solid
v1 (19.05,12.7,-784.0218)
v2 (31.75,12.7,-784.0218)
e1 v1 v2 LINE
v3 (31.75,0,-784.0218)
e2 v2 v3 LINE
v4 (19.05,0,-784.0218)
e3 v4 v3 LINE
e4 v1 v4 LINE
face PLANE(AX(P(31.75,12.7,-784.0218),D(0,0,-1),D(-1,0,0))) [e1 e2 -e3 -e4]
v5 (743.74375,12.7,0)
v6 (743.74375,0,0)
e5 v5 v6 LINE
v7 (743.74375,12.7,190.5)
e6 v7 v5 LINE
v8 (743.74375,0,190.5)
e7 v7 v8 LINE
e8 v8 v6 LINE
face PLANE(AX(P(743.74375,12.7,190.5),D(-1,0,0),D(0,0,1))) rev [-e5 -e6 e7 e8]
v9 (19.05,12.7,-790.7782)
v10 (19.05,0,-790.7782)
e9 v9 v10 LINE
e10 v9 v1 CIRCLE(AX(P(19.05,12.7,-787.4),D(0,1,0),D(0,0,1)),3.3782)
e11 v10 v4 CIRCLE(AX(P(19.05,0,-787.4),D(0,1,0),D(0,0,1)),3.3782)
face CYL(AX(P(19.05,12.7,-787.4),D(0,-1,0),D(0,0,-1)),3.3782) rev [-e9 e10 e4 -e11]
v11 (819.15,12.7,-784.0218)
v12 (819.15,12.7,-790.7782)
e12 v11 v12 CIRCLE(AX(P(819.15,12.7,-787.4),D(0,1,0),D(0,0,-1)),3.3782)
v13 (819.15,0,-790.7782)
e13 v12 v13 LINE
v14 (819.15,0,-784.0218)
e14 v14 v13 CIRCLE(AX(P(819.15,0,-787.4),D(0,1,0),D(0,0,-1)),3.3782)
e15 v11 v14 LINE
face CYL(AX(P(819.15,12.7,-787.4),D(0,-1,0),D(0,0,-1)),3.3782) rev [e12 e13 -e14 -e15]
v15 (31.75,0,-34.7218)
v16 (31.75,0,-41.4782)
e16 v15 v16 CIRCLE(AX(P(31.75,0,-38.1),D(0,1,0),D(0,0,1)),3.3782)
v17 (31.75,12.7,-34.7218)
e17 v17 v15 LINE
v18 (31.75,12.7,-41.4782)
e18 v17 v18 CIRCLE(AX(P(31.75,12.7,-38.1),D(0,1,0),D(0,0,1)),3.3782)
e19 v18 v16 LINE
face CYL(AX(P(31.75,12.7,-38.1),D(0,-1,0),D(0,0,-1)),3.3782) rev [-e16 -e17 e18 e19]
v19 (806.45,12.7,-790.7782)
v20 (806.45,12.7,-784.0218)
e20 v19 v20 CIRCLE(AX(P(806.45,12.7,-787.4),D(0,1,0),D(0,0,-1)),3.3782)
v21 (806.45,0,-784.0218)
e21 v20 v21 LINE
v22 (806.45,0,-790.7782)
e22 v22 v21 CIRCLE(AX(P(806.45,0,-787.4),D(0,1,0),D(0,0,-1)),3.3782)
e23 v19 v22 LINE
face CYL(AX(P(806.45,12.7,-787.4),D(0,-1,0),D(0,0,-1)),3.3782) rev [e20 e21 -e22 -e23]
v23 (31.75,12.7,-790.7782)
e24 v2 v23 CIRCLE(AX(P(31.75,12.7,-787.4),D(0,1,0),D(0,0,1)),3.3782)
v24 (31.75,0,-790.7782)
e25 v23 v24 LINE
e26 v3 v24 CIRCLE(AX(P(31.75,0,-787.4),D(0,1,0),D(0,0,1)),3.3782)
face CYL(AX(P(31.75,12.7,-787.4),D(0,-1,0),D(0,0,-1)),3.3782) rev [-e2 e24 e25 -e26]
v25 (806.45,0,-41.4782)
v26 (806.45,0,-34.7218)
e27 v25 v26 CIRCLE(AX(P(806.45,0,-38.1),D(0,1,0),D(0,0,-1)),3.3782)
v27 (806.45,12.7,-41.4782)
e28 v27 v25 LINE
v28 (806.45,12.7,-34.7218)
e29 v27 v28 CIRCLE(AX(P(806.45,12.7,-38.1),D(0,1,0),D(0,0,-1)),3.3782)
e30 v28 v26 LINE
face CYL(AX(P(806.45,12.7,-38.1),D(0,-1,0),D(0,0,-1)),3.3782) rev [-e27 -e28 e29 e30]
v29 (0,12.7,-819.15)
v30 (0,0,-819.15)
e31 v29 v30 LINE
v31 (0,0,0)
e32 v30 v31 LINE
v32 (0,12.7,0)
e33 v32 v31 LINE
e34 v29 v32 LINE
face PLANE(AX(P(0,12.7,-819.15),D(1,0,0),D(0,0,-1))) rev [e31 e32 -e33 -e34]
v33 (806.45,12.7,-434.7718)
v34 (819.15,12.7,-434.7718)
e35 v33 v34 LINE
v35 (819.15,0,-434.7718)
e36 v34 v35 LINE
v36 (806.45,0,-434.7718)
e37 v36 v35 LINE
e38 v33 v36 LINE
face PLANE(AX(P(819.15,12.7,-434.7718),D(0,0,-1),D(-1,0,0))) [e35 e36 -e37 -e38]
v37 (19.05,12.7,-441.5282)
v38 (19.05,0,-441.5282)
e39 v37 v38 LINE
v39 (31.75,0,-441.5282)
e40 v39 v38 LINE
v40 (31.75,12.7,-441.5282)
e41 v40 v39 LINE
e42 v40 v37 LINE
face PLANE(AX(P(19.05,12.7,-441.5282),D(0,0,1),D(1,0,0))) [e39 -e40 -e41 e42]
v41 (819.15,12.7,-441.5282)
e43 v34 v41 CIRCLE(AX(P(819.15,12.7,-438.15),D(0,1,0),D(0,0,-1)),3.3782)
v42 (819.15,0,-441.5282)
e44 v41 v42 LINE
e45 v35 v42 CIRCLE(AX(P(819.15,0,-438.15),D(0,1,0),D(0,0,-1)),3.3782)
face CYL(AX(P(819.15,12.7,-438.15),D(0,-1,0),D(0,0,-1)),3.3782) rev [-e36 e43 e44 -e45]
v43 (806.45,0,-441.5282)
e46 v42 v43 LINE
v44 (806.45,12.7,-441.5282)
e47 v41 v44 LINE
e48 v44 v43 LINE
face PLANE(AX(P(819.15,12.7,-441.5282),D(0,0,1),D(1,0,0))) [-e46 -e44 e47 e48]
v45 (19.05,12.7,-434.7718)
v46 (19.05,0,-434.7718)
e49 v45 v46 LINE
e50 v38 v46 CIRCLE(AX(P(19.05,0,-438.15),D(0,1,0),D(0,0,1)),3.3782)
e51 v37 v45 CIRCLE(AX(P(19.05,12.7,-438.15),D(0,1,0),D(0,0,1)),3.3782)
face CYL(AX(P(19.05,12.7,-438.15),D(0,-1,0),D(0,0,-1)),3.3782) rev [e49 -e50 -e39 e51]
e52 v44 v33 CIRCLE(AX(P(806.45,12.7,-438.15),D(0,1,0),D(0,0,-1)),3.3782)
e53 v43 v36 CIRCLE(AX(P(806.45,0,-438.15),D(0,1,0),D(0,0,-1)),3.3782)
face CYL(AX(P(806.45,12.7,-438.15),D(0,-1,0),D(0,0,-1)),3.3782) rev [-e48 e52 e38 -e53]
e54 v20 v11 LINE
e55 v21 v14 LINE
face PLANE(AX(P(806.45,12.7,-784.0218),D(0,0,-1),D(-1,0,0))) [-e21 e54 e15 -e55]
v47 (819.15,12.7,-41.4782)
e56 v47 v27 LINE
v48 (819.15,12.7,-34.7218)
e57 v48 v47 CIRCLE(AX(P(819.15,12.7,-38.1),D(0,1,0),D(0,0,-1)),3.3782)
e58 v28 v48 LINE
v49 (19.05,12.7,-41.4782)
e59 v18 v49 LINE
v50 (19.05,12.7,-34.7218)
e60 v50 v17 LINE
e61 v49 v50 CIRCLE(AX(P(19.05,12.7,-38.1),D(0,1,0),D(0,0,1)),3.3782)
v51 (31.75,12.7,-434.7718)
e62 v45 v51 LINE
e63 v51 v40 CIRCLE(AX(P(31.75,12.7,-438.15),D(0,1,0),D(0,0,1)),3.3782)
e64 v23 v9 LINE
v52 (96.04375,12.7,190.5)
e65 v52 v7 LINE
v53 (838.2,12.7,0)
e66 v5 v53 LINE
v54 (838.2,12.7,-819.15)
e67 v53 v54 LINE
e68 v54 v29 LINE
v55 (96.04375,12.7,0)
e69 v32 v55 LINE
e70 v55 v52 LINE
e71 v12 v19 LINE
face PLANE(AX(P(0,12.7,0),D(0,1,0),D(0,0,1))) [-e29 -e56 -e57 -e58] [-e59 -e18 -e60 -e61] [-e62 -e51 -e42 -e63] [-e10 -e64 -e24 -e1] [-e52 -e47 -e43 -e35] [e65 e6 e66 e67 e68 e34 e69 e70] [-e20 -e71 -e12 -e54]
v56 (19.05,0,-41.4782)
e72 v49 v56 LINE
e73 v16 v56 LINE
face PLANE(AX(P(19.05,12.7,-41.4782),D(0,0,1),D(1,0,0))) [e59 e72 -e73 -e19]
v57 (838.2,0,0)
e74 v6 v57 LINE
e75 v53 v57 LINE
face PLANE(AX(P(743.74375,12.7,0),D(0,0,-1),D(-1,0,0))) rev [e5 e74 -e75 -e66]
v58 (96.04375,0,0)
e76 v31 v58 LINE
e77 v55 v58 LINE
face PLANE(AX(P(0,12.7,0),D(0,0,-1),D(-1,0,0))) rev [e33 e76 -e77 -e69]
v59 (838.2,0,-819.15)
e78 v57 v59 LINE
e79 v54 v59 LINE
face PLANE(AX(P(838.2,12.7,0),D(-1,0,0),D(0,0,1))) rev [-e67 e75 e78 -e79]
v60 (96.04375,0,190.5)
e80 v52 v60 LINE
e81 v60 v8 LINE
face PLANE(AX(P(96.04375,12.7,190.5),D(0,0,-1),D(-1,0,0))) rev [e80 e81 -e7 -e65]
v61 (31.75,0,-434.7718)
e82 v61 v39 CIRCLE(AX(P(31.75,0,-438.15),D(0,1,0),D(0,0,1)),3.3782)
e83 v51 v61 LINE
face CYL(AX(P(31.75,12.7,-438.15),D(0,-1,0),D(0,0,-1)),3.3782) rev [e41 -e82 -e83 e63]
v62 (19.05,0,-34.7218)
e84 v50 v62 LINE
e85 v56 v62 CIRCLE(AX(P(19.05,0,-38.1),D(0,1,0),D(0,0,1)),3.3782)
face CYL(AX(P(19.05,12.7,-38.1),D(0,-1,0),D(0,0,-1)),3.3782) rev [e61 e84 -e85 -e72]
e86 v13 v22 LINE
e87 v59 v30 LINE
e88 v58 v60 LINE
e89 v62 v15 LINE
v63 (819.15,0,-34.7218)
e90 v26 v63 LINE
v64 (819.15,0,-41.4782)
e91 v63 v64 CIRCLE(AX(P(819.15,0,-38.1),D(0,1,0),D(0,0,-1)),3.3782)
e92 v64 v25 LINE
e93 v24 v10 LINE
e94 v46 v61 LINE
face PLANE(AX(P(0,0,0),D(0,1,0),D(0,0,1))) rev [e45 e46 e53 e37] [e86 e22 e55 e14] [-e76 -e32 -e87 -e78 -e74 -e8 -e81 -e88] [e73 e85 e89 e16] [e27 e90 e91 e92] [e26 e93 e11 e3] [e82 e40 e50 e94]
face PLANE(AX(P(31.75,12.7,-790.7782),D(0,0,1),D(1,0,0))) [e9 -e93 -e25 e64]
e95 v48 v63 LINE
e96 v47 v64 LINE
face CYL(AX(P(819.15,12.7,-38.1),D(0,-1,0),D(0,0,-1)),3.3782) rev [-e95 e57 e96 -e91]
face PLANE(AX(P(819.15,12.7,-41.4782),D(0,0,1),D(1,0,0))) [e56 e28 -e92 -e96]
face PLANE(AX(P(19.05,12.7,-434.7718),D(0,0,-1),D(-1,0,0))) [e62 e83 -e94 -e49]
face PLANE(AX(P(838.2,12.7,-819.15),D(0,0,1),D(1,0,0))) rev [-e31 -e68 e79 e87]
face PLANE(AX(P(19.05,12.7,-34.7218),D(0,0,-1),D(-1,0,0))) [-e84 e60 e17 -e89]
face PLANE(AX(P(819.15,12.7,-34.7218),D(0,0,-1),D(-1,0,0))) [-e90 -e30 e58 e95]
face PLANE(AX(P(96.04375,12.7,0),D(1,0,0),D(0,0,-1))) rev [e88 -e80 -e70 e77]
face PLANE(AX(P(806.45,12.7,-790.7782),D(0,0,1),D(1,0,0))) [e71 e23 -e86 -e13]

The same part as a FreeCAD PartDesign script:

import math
import FreeCAD as App
import Part
import Sketcher

V = App.Vector
Q = App.Units.Quantity


def add_polygon(sketch, points):
    """Adds a closed chain of lines whose ends are joined by coincident constraints."""
    first, n = sketch.GeometryCount, len(points)
    for a, b in zip(points, points[1:] + points[:1]):
        sketch.addGeometry(Part.LineSegment(App.Vector(*a, 0), App.Vector(*b, 0)), False)
    for i in range(n):
        sketch.addConstraint(Sketcher.Constraint("Coincident", first + i, 2, first + (i + 1) % n, 1))

doc = App.newDocument("Part")
body = doc.addObject("PartDesign::Body", "Body")

# Sketch on XZ plane
sketch1 = body.newObject("Sketcher::SketchObject", "Sketch")
sketch1.AttachmentSupport = (doc.getObject("XZ_Plane"), [""])
sketch1.MapMode = "FlatFace"
add_polygon(sketch1, [(0, 0), (96, 0), (96, 190.5), (743.7, 190.5), (743.7, 0), (838.2, 0), (838.2, -819.1), (0, -819.1)])  # lines 0-7
sketch1.addGeometry(Part.ArcOfCircle(Part.Circle(V(19.1, -38.1, 0), V(0, 0, 1), 3.4), math.radians(90), math.radians(270)), False)  # 8
sketch1.addGeometry(Part.LineSegment(V(19.1, -41.5, 0), V(31.8, -41.5, 0)), False)  # 9
sketch1.addGeometry(Part.ArcOfCircle(Part.Circle(V(31.8, -38.1, 0), V(0, 0, 1), 3.4), math.radians(-90), math.radians(90)), False)  # 10
sketch1.addGeometry(Part.LineSegment(V(31.8, -34.7, 0), V(19.1, -34.7, 0)), False)  # 11
sketch1.addGeometry(Part.LineSegment(V(806.5, -41.5, 0), V(819.1, -41.5, 0)), False)  # 12
sketch1.addGeometry(Part.ArcOfCircle(Part.Circle(V(819.1, -38.1, 0), V(0, 0, 1), 3.4), math.radians(-90), math.radians(90)), False)  # 13
sketch1.addGeometry(Part.LineSegment(V(819.1, -34.7, 0), V(806.5, -34.7, 0)), False)  # 14
sketch1.addGeometry(Part.ArcOfCircle(Part.Circle(V(806.5, -38.1, 0), V(0, 0, 1), 3.4), math.radians(90), math.radians(270)), False)  # 15
sketch1.addGeometry(Part.ArcOfCircle(Part.Circle(V(19.1, -438.1, 0), V(0, 0, 1), 3.4), math.radians(90), math.radians(270)), False)  # 16
sketch1.addGeometry(Part.LineSegment(V(19.1, -441.5, 0), V(31.8, -441.5, 0)), False)  # 17
sketch1.addGeometry(Part.ArcOfCircle(Part.Circle(V(31.8, -438.1, 0), V(0, 0, 1), 3.4), math.radians(-90), math.radians(90)), False)  # 18
sketch1.addGeometry(Part.LineSegment(V(31.8, -434.8, 0), V(19.1, -434.8, 0)), False)  # 19
sketch1.addGeometry(Part.ArcOfCircle(Part.Circle(V(31.8, -787.4, 0), V(0, 0, 1), 3.4), math.radians(-90), math.radians(90)), False)  # 20
sketch1.addGeometry(Part.LineSegment(V(31.8, -784, 0), V(19.1, -784, 0)), False)  # 21
sketch1.addGeometry(Part.ArcOfCircle(Part.Circle(V(19.1, -787.4, 0), V(0, 0, 1), 3.4), math.radians(90), math.radians(270)), False)  # 22
sketch1.addGeometry(Part.LineSegment(V(19.1, -790.8, 0), V(31.8, -790.8, 0)), False)  # 23
sketch1.addGeometry(Part.LineSegment(V(806.5, -441.5, 0), V(819.1, -441.5, 0)), False)  # 24
sketch1.addGeometry(Part.ArcOfCircle(Part.Circle(V(819.1, -438.1, 0), V(0, 0, 1), 3.4), math.radians(-90), math.radians(90)), False)  # 25
sketch1.addGeometry(Part.LineSegment(V(819.1, -434.8, 0), V(806.5, -434.8, 0)), False)  # 26
sketch1.addGeometry(Part.ArcOfCircle(Part.Circle(V(806.5, -438.1, 0), V(0, 0, 1), 3.4), math.radians(90), math.radians(270)), False)  # 27
sketch1.addGeometry(Part.LineSegment(V(819.1, -784, 0), V(806.5, -784, 0)), False)  # 28
sketch1.addGeometry(Part.ArcOfCircle(Part.Circle(V(806.5, -787.4, 0), V(0, 0, 1), 3.4), math.radians(90), math.radians(270)), False)  # 29
sketch1.addGeometry(Part.LineSegment(V(806.5, -790.8, 0), V(819.1, -790.8, 0)), False)  # 30
sketch1.addGeometry(Part.ArcOfCircle(Part.Circle(V(819.1, -787.4, 0), V(0, 0, 1), 3.4), math.radians(-90), math.radians(90)), False)  # 31
sketch1.addConstraint(Sketcher.Constraint("Tangent", 8, 2, 9, 1))
sketch1.addConstraint(Sketcher.Constraint("Tangent", 9, 2, 10, 1))
sketch1.addConstraint(Sketcher.Constraint("Tangent", 10, 2, 11, 1))
sketch1.addConstraint(Sketcher.Constraint("Tangent", 11, 2, 8, 1))
sketch1.addConstraint(Sketcher.Constraint("Tangent", 12, 2, 13, 1))
sketch1.addConstraint(Sketcher.Constraint("Tangent", 13, 2, 14, 1))
sketch1.addConstraint(Sketcher.Constraint("Tangent", 14, 2, 15, 1))
sketch1.addConstraint(Sketcher.Constraint("Tangent", 15, 2, 12, 1))
sketch1.addConstraint(Sketcher.Constraint("Tangent", 16, 2, 17, 1))
sketch1.addConstraint(Sketcher.Constraint("Tangent", 17, 2, 18, 1))
sketch1.addConstraint(Sketcher.Constraint("Tangent", 18, 2, 19, 1))
sketch1.addConstraint(Sketcher.Constraint("Tangent", 19, 2, 16, 1))
sketch1.addConstraint(Sketcher.Constraint("Tangent", 20, 2, 21, 1))
sketch1.addConstraint(Sketcher.Constraint("Tangent", 21, 2, 22, 1))
sketch1.addConstraint(Sketcher.Constraint("Tangent", 22, 2, 23, 1))
sketch1.addConstraint(Sketcher.Constraint("Tangent", 23, 2, 20, 1))
sketch1.addConstraint(Sketcher.Constraint("Tangent", 24, 2, 25, 1))
sketch1.addConstraint(Sketcher.Constraint("Tangent", 25, 2, 26, 1))
sketch1.addConstraint(Sketcher.Constraint("Tangent", 26, 2, 27, 1))
sketch1.addConstraint(Sketcher.Constraint("Tangent", 27, 2, 24, 1))
sketch1.addConstraint(Sketcher.Constraint("Tangent", 28, 2, 29, 1))
sketch1.addConstraint(Sketcher.Constraint("Tangent", 29, 2, 30, 1))
sketch1.addConstraint(Sketcher.Constraint("Tangent", 30, 2, 31, 1))
sketch1.addConstraint(Sketcher.Constraint("Tangent", 31, 2, 28, 1))
sketch1.addConstraint(Sketcher.Constraint("Horizontal", 0))
sketch1.addConstraint(Sketcher.Constraint("Vertical", 1))
sketch1.addConstraint(Sketcher.Constraint("Horizontal", 2))
sketch1.addConstraint(Sketcher.Constraint("Vertical", 3))
sketch1.addConstraint(Sketcher.Constraint("Horizontal", 4))
sketch1.addConstraint(Sketcher.Constraint("Vertical", 5))
sketch1.addConstraint(Sketcher.Constraint("Horizontal", 6))
sketch1.addConstraint(Sketcher.Constraint("Vertical", 7))
sketch1.addConstraint(Sketcher.Constraint("Horizontal", 9))
sketch1.addConstraint(Sketcher.Constraint("Horizontal", 11))
sketch1.addConstraint(Sketcher.Constraint("Horizontal", 12))
sketch1.addConstraint(Sketcher.Constraint("Horizontal", 14))
sketch1.addConstraint(Sketcher.Constraint("Horizontal", 17))
sketch1.addConstraint(Sketcher.Constraint("Horizontal", 19))
sketch1.addConstraint(Sketcher.Constraint("Horizontal", 21))
sketch1.addConstraint(Sketcher.Constraint("Horizontal", 23))
sketch1.addConstraint(Sketcher.Constraint("Horizontal", 24))
sketch1.addConstraint(Sketcher.Constraint("Horizontal", 26))
sketch1.addConstraint(Sketcher.Constraint("Horizontal", 28))
sketch1.addConstraint(Sketcher.Constraint("Horizontal", 30))
sketch1.addConstraint(Sketcher.Constraint("Coincident", 7, 2, -1, 1))
sketch1.addConstraint(Sketcher.Constraint("Equal", 10, 13))
sketch1.addConstraint(Sketcher.Constraint("Equal", 15, 16))
sketch1.addConstraint(Sketcher.Constraint("Equal", 18, 20))
sketch1.addConstraint(Sketcher.Constraint("Equal", 22, 25))
sketch1.addConstraint(Sketcher.Constraint("Equal", 27, 29))
sketch1.addConstraint(Sketcher.Constraint("PointOnObject", 3, 2, -1))
sketch1.addConstraint(Sketcher.Constraint("Horizontal", 10, 3, 13, 3))
sketch1.addConstraint(Sketcher.Constraint("Horizontal", 18, 3, 25, 3))
sketch1.addConstraint(Sketcher.Constraint("Horizontal", 22, 3, 29, 3))
sketch1.addConstraint(Sketcher.Constraint("Vertical", 8, 3, 16, 3))
sketch1.addConstraint(Sketcher.Constraint("Vertical", 10, 3, 18, 3))
sketch1.addConstraint(Sketcher.Constraint("Vertical", 18, 3, 20, 3))
sketch1.addConstraint(Sketcher.Constraint("Vertical", 16, 3, 22, 3))
sketch1.addConstraint(Sketcher.Constraint("Vertical", 13, 3, 25, 3))
sketch1.addConstraint(Sketcher.Constraint("Vertical", 15, 3, 27, 3))
sketch1.addConstraint(Sketcher.Constraint("Vertical", 27, 3, 29, 3))
sketch1.addConstraint(Sketcher.Constraint("Vertical", 25, 3, 31, 3))
sketch1.addConstraint(Sketcher.Constraint("Equal", 11, 12))
sketch1.addConstraint(Sketcher.Constraint("DistanceX", 6, 2, 6, 1, Q("33 in")))
sketch1.addConstraint(Sketcher.Constraint("DistanceX", 2, 1, 2, 2, Q("25.5 in")))
sketch1.addConstraint(Sketcher.Constraint("DistanceX", 9, 1, 9, 2, Q("0.5 in")))
sketch1.addConstraint(Sketcher.Constraint("DistanceY", 1, 1, 1, 2, Q("7.5 in")))
sketch1.addConstraint(Sketcher.Constraint("DistanceY", 20, 3, -1, 1, Q("31 in")))
sketch1.addConstraint(Sketcher.Constraint("Radius", 8, Q("0.133 in")))
sketch1.addConstraint(Sketcher.Constraint("DistanceX", 10, 3, 13, 3, Q("31 in")))
sketch1.addConstraint(Sketcher.Constraint("DistanceY", 10, 3, 1, 2, Q("9 in")))
sketch1.addConstraint(Sketcher.Constraint("DistanceY", 5, 2, 25, 3, Q("15 in")))
sketch1.addConstraint(Sketcher.Constraint("DistanceY", 5, 2, 5, 1, Q("32.25 in")))
sketch1.addConstraint(Sketcher.Constraint("DistanceX", 0, 1, 0, 2, Q("3.78125 in")))
sketch1.addConstraint(Sketcher.Constraint("DistanceX", -1, 1, 8, 3, Q("0.75 in")))
pad1 = body.newObject("PartDesign::Pad", "Pad")
pad1.Profile = sketch1
pad1.Length = Q("0.5 in")
pad1.Reversed = True

doc.recompute()
